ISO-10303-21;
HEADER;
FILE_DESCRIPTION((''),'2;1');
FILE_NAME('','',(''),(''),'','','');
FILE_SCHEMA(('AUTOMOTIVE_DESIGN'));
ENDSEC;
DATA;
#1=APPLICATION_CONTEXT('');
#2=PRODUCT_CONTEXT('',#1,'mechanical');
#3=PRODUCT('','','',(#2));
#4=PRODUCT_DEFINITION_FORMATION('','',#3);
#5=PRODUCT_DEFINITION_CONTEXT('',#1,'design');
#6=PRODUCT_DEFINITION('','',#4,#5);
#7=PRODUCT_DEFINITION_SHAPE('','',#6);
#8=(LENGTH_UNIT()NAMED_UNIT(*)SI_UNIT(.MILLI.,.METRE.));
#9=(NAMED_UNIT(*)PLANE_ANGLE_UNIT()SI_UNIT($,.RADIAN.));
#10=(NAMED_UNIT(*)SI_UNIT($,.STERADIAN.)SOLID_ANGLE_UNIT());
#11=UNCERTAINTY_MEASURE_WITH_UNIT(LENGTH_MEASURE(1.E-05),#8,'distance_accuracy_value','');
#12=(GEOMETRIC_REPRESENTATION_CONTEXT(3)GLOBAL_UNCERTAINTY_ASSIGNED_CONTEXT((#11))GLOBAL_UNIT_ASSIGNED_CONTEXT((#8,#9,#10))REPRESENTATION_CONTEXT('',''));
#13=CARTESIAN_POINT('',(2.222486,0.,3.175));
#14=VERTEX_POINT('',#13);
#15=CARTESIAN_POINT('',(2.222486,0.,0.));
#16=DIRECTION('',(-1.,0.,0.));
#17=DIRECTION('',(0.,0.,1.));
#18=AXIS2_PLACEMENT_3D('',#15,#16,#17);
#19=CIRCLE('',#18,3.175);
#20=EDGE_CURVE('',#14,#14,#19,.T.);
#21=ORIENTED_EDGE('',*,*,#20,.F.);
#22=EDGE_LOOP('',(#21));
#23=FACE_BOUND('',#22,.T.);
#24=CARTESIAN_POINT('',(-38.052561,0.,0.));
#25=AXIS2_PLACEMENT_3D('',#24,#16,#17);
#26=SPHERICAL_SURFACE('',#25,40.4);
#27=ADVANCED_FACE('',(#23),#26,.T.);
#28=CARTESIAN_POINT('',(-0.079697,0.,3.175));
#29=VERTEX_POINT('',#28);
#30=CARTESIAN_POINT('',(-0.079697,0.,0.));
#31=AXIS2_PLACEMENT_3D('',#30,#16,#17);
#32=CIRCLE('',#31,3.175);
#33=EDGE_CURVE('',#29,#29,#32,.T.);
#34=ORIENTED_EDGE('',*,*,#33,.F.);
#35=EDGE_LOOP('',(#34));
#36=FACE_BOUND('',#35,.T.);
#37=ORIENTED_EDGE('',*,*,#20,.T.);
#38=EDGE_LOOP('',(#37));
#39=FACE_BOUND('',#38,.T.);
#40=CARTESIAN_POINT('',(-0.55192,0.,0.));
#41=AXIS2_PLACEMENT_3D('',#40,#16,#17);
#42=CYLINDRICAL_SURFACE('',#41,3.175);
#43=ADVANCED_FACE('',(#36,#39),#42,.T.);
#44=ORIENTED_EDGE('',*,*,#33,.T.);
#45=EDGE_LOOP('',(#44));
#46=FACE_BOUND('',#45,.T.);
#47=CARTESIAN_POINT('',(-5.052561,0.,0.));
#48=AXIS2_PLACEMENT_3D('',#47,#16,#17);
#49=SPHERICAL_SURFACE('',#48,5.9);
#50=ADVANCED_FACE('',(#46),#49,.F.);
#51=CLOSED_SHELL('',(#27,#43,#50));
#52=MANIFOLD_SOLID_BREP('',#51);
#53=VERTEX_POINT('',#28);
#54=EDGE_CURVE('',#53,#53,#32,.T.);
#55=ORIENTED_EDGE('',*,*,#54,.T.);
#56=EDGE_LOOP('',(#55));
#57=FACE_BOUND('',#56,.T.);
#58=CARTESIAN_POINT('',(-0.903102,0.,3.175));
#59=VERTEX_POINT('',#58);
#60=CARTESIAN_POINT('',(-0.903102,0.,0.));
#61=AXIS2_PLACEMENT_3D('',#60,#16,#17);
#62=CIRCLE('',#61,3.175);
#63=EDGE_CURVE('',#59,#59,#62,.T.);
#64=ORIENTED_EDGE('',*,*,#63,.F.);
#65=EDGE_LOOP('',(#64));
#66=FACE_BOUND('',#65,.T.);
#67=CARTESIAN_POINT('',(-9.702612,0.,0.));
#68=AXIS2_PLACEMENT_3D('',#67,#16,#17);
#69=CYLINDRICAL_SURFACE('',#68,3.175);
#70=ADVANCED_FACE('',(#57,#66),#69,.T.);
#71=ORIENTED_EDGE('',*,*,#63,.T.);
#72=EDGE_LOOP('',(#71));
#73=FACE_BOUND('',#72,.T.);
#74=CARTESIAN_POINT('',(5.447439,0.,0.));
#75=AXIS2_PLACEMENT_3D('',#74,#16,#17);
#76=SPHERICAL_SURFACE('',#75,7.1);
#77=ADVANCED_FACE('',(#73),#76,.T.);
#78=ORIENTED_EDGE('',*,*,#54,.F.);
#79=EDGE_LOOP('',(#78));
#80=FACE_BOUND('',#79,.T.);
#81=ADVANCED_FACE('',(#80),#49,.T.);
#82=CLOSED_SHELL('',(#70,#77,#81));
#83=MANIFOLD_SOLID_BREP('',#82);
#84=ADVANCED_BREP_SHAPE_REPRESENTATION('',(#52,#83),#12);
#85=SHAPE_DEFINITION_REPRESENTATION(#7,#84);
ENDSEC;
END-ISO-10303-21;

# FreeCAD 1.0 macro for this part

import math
import FreeCAD as App
import Part
import Sketcher
from FreeCAD import Vector

doc = App.newDocument("Part")
body = doc.addObject("PartDesign::Body", "Body")

sketch1 = doc.addObject("Sketcher::SketchObject", "Sketch")
body.addObject(sketch1)
sketch1.AttachmentSupport = (doc.XZ_Plane, [""])
sketch1.MapMode = "FlatFace"
sketch1.addGeometry(Part.ArcOfCircle(Part.Circle(Vector(5.4, 0, 0), Vector(0, 0, 1), 7.1), math.radians(180), math.radians(207)), False)
sketch1.addGeometry(Part.LineSegment(Vector(-1.7, 0, 0), Vector(0.8, 0, 0)), False)
sketch1.addGeometry(Part.ArcOfCircle(Part.Circle(Vector(-5.1, 0, 0), Vector(0, 0, 1), 5.9), math.radians(-33), math.radians(0)), False)
sketch1.addGeometry(Part.LineSegment(Vector(-0.1, -3.2, 0), Vector(-0.9, -3.2, 0)), False)
sketch1.addConstraint(Sketcher.Constraint("Coincident", 0, 1, 1, 1))
sketch1.addConstraint(Sketcher.Constraint("Coincident", 1, 2, 2, 2))
sketch1.addConstraint(Sketcher.Constraint("Coincident", 2, 1, 3, 1))
sketch1.addConstraint(Sketcher.Constraint("Coincident", 3, 2, 0, 2))
sketch1.addConstraint(Sketcher.Constraint("Horizontal", 1))
sketch1.addConstraint(Sketcher.Constraint("Horizontal", 3))
sketch1.addConstraint(Sketcher.Constraint("PointOnObject", 0, 3, -1))
sketch1.addConstraint(Sketcher.Constraint("PointOnObject", 2, 3, -1))
sketch1.addConstraint(Sketcher.Constraint("PointOnObject", 0, 1, -1))
sketch1.addConstraint(Sketcher.Constraint("Radius", 0, 7.1))
sketch1.addConstraint(Sketcher.Constraint("Radius", 2, 5.9))
sketch1.addConstraint(Sketcher.Constraint("DistanceX", 1, 1, 1, 2, 2.5))
sketch1.addConstraint(Sketcher.Constraint("DistanceY", 2, 1, -1, 1, 3.175))
sketch1.addConstraint(Sketcher.Constraint("DistanceX", 3, 2, -1, 1, 0.903102))
revolution = doc.addObject("PartDesign::Revolution", "Revolution")
body.addObject(revolution)
revolution.Profile = sketch1
revolution.ReferenceAxis = (sketch1, ["H_Axis"])
revolution.Angle = 360
body2 = doc.addObject("PartDesign::Body", "Body001")

sketch2 = doc.addObject("Sketcher::SketchObject", "Sketch001")
body2.addObject(sketch2)
sketch2.AttachmentSupport = (doc.getObject("XZ_Plane001"), [""])
sketch2.MapMode = "FlatFace"
sketch2.addGeometry(Part.LineSegment(Vector(2.2, -3.2, 0), Vector(-0.1, -3.2, 0)), False)
sketch2.addGeometry(Part.ArcOfCircle(Part.Circle(Vector(-5.1, 0, 0), Vector(0, 0, 1), 5.9), math.radians(-33), math.radians(0)), False)
sketch2.addGeometry(Part.LineSegment(Vector(0.8, 0, 0), Vector(2.3, 0, 0)), False)
sketch2.addGeometry(Part.ArcOfCircle(Part.Circle(Vector(-38.1, 0, 0), Vector(0, 0, 1), 40.4), math.radians(-4.51), math.radians(0)), False)
sketch2.addConstraint(Sketcher.Constraint("Coincident", 0, 2, 1, 1))
sketch2.addConstraint(Sketcher.Constraint("Coincident", 1, 2, 2, 1))
sketch2.addConstraint(Sketcher.Constraint("Coincident", 2, 2, 3, 2))
sketch2.addConstraint(Sketcher.Constraint("Coincident", 3, 1, 0, 1))
sketch2.addConstraint(Sketcher.Constraint("Horizontal", 0))
sketch2.addConstraint(Sketcher.Constraint("Horizontal", 2))
sketch2.addConstraint(Sketcher.Constraint("PointOnObject", 1, 3, -1))
sketch2.addConstraint(Sketcher.Constraint("PointOnObject", 3, 3, -1))
sketch2.addConstraint(Sketcher.Constraint("PointOnObject", 1, 2, -1))
sketch2.addConstraint(Sketcher.Constraint("Radius", 1, 5.9))
sketch2.addConstraint(Sketcher.Constraint("Radius", 3, 40.4))
sketch2.addConstraint(Sketcher.Constraint("DistanceX", 2, 1, 2, 2, 1.5))
sketch2.addConstraint(Sketcher.Constraint("DistanceY", 0, 2, -1, 1, 3.175))
sketch2.addConstraint(Sketcher.Constraint("DistanceX", 1, 3, -1, 1, 5.052561))
revolution2 = doc.addObject("PartDesign::Revolution", "Revolution001")
body2.addObject(revolution2)
revolution2.Profile = sketch2
revolution2.ReferenceAxis = (sketch2, ["H_Axis"])
revolution2.Angle = 360

doc.recompute()
